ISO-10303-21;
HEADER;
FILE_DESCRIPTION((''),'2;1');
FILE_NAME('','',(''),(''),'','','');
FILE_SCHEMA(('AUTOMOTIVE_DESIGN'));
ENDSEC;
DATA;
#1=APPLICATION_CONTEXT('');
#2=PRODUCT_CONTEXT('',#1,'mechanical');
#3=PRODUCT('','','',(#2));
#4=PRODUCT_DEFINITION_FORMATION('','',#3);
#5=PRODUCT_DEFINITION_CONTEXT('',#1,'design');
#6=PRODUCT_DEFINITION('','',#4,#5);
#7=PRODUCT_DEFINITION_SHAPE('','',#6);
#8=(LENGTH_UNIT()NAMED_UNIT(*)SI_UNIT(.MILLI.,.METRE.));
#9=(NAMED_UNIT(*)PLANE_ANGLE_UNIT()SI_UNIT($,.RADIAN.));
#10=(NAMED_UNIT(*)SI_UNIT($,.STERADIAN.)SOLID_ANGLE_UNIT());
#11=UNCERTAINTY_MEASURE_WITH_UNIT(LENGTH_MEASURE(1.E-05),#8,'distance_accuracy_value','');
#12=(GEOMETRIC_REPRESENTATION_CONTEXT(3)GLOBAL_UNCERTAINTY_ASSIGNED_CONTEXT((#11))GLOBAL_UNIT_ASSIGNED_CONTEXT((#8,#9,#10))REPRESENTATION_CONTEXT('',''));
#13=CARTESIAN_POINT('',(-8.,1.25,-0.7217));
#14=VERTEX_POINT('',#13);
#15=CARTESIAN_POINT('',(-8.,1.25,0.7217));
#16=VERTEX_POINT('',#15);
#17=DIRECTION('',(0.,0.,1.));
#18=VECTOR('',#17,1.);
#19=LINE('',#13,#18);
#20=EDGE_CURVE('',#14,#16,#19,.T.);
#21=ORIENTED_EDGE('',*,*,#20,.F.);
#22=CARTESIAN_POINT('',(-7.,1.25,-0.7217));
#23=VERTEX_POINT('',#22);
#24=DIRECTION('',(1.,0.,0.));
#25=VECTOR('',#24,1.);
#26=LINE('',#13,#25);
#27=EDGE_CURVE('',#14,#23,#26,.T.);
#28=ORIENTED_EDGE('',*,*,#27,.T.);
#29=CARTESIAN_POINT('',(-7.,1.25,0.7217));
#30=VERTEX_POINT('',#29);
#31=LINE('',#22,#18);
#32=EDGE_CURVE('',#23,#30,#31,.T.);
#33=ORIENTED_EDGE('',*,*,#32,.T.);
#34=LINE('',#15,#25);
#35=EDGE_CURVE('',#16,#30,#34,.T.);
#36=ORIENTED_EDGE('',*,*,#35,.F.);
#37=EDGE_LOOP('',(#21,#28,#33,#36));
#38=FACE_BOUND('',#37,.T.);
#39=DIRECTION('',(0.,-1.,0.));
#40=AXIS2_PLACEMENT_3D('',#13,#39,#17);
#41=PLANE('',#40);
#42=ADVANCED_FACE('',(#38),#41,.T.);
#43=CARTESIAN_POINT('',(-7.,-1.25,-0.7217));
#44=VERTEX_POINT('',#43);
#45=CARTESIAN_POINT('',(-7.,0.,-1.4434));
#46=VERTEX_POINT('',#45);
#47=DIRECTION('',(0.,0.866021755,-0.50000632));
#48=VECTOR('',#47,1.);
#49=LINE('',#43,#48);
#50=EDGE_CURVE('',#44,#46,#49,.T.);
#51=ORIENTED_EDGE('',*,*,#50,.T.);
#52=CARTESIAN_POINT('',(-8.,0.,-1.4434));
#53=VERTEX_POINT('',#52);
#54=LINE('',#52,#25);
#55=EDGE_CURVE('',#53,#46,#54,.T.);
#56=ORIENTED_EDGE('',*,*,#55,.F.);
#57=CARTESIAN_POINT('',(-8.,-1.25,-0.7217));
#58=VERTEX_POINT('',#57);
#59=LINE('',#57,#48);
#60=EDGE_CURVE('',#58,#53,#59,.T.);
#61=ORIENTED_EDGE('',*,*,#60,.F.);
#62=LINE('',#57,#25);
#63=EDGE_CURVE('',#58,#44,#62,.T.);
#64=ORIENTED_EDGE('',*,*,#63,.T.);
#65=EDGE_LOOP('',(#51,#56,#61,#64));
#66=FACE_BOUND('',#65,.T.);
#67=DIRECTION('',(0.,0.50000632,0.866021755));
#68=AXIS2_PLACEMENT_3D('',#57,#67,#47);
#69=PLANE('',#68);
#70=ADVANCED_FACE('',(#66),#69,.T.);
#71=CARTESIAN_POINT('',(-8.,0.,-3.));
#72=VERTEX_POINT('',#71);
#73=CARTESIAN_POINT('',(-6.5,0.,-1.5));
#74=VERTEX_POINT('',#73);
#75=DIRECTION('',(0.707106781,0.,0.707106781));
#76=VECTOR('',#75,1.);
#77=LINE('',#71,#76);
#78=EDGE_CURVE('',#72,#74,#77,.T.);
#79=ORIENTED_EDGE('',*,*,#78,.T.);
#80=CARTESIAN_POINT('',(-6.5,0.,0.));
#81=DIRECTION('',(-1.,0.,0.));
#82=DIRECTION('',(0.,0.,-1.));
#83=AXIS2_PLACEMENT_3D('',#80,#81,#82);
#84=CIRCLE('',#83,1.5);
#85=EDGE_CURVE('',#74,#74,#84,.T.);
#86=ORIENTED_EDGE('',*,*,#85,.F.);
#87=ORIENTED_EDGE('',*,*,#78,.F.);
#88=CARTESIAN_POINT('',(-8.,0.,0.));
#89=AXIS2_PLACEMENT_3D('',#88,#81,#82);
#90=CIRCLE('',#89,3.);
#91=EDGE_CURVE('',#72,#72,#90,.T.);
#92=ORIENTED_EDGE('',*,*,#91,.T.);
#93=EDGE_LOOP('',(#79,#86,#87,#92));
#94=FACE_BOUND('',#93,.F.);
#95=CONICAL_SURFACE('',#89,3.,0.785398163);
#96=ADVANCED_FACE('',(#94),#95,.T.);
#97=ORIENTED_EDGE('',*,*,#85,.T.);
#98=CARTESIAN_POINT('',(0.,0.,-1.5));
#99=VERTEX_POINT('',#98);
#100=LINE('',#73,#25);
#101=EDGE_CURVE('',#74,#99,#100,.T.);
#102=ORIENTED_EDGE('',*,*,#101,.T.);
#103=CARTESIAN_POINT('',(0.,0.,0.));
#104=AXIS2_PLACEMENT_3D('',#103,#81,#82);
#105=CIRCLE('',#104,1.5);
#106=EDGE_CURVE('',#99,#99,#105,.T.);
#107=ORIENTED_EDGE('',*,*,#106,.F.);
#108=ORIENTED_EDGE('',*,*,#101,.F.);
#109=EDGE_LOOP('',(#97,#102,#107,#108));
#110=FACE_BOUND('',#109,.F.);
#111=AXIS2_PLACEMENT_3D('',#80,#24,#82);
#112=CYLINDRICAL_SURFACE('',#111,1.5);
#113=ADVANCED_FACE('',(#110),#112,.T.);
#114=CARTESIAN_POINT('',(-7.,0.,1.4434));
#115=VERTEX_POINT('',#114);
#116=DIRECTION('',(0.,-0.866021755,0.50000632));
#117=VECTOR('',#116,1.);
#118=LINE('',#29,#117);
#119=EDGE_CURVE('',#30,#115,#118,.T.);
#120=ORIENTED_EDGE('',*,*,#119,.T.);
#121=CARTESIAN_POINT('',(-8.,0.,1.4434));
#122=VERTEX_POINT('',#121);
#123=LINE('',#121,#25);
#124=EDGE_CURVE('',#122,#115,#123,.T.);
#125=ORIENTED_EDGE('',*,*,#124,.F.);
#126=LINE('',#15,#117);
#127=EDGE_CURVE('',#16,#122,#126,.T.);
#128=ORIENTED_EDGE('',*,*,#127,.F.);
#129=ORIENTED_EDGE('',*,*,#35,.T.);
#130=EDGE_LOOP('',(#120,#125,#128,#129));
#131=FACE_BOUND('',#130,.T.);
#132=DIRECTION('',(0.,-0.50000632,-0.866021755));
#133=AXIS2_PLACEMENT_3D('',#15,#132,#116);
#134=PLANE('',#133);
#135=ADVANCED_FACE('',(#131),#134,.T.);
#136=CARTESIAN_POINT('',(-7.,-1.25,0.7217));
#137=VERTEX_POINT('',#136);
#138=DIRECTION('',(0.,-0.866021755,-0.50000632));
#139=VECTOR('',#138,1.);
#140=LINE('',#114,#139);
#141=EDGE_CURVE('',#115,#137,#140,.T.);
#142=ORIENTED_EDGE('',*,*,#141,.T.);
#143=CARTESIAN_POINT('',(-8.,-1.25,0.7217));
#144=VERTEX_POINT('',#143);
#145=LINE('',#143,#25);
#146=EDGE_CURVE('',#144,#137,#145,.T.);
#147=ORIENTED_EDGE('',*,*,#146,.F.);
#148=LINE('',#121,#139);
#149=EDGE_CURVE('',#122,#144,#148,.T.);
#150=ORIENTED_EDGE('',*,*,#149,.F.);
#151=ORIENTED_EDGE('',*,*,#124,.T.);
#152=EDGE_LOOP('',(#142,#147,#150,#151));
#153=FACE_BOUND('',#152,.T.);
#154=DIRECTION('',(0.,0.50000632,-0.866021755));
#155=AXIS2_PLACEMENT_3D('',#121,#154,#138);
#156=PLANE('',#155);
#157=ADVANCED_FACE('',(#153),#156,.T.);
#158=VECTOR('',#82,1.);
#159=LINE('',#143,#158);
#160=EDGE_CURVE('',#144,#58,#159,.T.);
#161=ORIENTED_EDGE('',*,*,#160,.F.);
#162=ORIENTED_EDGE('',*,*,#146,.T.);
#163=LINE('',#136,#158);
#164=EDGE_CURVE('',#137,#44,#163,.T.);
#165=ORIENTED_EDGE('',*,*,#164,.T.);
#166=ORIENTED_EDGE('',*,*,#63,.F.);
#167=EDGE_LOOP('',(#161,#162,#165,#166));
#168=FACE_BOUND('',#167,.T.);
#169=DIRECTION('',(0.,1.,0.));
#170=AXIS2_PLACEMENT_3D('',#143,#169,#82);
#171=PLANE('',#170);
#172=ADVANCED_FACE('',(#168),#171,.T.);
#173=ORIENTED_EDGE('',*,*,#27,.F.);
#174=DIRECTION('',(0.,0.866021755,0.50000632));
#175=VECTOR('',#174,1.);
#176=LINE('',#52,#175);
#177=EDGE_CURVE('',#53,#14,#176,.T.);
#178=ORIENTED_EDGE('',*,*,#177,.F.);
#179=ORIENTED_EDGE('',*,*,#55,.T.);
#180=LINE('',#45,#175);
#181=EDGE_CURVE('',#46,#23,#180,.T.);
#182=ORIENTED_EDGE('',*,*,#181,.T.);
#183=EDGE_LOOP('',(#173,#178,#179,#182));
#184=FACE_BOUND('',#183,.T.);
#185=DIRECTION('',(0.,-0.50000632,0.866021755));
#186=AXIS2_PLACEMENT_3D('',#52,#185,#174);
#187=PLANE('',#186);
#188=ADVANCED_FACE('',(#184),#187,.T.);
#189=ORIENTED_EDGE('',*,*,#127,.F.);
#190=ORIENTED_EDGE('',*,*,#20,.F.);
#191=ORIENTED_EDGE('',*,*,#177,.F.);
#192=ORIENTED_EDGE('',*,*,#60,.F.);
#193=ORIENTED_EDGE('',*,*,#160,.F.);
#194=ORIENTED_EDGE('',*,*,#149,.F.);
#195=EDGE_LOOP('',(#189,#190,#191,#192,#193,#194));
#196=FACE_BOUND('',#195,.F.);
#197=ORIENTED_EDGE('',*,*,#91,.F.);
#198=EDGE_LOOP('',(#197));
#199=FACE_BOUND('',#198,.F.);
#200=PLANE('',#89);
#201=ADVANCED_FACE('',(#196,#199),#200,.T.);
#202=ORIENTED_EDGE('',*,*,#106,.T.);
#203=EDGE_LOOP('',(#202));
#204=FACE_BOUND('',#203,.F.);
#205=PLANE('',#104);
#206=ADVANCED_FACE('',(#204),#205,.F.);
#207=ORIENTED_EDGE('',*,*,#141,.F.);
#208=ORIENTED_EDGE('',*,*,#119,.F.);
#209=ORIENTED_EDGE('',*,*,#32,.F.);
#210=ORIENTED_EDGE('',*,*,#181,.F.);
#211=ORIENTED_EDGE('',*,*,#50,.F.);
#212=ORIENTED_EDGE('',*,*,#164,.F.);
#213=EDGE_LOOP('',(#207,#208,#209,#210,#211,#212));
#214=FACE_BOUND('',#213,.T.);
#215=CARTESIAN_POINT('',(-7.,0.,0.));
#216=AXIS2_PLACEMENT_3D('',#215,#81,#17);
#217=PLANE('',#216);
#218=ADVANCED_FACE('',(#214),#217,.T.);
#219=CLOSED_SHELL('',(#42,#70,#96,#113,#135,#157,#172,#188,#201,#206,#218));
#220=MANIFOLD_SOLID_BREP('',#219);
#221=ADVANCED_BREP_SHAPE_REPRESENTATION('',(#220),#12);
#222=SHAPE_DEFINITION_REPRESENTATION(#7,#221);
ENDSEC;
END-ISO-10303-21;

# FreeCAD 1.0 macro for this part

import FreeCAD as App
import Part
import Sketcher

V = App.Vector
Q = App.Units.Quantity

doc = App.newDocument("Part")
body = doc.addObject("PartDesign::Body", "Body")

sketch1 = body.newObject("Sketcher::SketchObject", "Sketch")
sketch1.AttachmentSupport = (doc.getObject("XZ_Plane"), [""])
sketch1.MapMode = "FlatFace"
sketch1.addGeometry([
    Part.LineSegment(V(-8, 0, 0), V(0, 0, 0)),
    Part.LineSegment(V(0, 0, 0), V(0, -1.5, 0)),
    Part.LineSegment(V(0, -1.5, 0), V(-6.5, -1.5, 0)),
    Part.LineSegment(V(-6.5, -1.5, 0), V(-8, -3, 0)),
    Part.LineSegment(V(-8, -3, 0), V(-8, 0, 0)),
], False)
sketch1.addConstraint([
    Sketcher.Constraint("Coincident", 0, 2, 1, 1),
    Sketcher.Constraint("Coincident", 1, 2, 2, 1),
    Sketcher.Constraint("Coincident", 2, 2, 3, 1),
    Sketcher.Constraint("Coincident", 3, 2, 4, 1),
    Sketcher.Constraint("Coincident", 4, 2, 0, 1),
    Sketcher.Constraint("Horizontal", 0),
    Sketcher.Constraint("Vertical", 1),
    Sketcher.Constraint("Horizontal", 2),
    Sketcher.Constraint("Vertical", 4),
    Sketcher.Constraint("Coincident", 0, 2, -1, 1),
    Sketcher.Constraint("DistanceX", 0, 1, 0, 2, Q("8 mm")),
    Sketcher.Constraint("DistanceY", 4, 1, 4, 2, Q("3 mm")),
    Sketcher.Constraint("Angle", 3, Q("-135 deg")),
    Sketcher.Constraint("DistanceX", 2, 2, 2, 1, Q("6.5 mm")),
])
revolution = body.newObject("PartDesign::Revolution", "Revolution")
revolution.Profile = sketch1
revolution.ReferenceAxis = (sketch1, ["H_Axis"])
revolution.Angle = 360

sketch2 = body.newObject("Sketcher::SketchObject", "Sketch001")
sketch2.AttachmentSupport = (doc.getObject("YZ_Plane"), [""])
sketch2.MapMode = "FlatFace"
sketch2.AttachmentOffset = App.Placement(V(0, 0, -8), App.Rotation())
sketch2.addGeometry([
    Part.LineSegment(V(0, 1.4, 0), V(1.2, 0.7, 0)),
    Part.LineSegment(V(1.2, 0.7, 0), V(1.2, -0.7, 0)),
    Part.LineSegment(V(1.2, -0.7, 0), V(0, -1.4, 0)),
    Part.LineSegment(V(0, -1.4, 0), V(-1.2, -0.7, 0)),
    Part.LineSegment(V(-1.2, -0.7, 0), V(-1.2, 0.7, 0)),
    Part.LineSegment(V(-1.2, 0.7, 0), V(0, 1.4, 0)),
], False)
sketch2.addConstraint([
    Sketcher.Constraint("Coincident", 0, 2, 1, 1),
    Sketcher.Constraint("Coincident", 1, 2, 2, 1),
    Sketcher.Constraint("Coincident", 2, 2, 3, 1),
    Sketcher.Constraint("Coincident", 3, 2, 4, 1),
    Sketcher.Constraint("Coincident", 4, 2, 5, 1),
    Sketcher.Constraint("Coincident", 5, 2, 0, 1),
    Sketcher.Constraint("Vertical", 1),
    Sketcher.Constraint("Vertical", 4),
    Sketcher.Constraint("Symmetric", 0, 2, 3, 2, -1, 1),
    Sketcher.Constraint("Symmetric", 2, 2, 5, 2, -1, 1),
    Sketcher.Constraint("PointOnObject", 2, 2, -2),
    Sketcher.Constraint("Parallel", 2, 5),
    Sketcher.Constraint("Horizontal", 1, 2, 3, 2),
    Sketcher.Constraint("DistanceX", 3, 2, 1, 2, Q("2.5 mm")),
    Sketcher.Constraint("Angle", 0, Q("-30.0004 deg")),
    Sketcher.Constraint("DistanceY", 1, 2, 1, 1, Q("1.4434 mm")),
])
pocket1 = body.newObject("PartDesign::Pocket", "Pocket")
pocket1.Profile = sketch2
pocket1.Length = 1
pocket1.Reversed = True

doc.recompute()
